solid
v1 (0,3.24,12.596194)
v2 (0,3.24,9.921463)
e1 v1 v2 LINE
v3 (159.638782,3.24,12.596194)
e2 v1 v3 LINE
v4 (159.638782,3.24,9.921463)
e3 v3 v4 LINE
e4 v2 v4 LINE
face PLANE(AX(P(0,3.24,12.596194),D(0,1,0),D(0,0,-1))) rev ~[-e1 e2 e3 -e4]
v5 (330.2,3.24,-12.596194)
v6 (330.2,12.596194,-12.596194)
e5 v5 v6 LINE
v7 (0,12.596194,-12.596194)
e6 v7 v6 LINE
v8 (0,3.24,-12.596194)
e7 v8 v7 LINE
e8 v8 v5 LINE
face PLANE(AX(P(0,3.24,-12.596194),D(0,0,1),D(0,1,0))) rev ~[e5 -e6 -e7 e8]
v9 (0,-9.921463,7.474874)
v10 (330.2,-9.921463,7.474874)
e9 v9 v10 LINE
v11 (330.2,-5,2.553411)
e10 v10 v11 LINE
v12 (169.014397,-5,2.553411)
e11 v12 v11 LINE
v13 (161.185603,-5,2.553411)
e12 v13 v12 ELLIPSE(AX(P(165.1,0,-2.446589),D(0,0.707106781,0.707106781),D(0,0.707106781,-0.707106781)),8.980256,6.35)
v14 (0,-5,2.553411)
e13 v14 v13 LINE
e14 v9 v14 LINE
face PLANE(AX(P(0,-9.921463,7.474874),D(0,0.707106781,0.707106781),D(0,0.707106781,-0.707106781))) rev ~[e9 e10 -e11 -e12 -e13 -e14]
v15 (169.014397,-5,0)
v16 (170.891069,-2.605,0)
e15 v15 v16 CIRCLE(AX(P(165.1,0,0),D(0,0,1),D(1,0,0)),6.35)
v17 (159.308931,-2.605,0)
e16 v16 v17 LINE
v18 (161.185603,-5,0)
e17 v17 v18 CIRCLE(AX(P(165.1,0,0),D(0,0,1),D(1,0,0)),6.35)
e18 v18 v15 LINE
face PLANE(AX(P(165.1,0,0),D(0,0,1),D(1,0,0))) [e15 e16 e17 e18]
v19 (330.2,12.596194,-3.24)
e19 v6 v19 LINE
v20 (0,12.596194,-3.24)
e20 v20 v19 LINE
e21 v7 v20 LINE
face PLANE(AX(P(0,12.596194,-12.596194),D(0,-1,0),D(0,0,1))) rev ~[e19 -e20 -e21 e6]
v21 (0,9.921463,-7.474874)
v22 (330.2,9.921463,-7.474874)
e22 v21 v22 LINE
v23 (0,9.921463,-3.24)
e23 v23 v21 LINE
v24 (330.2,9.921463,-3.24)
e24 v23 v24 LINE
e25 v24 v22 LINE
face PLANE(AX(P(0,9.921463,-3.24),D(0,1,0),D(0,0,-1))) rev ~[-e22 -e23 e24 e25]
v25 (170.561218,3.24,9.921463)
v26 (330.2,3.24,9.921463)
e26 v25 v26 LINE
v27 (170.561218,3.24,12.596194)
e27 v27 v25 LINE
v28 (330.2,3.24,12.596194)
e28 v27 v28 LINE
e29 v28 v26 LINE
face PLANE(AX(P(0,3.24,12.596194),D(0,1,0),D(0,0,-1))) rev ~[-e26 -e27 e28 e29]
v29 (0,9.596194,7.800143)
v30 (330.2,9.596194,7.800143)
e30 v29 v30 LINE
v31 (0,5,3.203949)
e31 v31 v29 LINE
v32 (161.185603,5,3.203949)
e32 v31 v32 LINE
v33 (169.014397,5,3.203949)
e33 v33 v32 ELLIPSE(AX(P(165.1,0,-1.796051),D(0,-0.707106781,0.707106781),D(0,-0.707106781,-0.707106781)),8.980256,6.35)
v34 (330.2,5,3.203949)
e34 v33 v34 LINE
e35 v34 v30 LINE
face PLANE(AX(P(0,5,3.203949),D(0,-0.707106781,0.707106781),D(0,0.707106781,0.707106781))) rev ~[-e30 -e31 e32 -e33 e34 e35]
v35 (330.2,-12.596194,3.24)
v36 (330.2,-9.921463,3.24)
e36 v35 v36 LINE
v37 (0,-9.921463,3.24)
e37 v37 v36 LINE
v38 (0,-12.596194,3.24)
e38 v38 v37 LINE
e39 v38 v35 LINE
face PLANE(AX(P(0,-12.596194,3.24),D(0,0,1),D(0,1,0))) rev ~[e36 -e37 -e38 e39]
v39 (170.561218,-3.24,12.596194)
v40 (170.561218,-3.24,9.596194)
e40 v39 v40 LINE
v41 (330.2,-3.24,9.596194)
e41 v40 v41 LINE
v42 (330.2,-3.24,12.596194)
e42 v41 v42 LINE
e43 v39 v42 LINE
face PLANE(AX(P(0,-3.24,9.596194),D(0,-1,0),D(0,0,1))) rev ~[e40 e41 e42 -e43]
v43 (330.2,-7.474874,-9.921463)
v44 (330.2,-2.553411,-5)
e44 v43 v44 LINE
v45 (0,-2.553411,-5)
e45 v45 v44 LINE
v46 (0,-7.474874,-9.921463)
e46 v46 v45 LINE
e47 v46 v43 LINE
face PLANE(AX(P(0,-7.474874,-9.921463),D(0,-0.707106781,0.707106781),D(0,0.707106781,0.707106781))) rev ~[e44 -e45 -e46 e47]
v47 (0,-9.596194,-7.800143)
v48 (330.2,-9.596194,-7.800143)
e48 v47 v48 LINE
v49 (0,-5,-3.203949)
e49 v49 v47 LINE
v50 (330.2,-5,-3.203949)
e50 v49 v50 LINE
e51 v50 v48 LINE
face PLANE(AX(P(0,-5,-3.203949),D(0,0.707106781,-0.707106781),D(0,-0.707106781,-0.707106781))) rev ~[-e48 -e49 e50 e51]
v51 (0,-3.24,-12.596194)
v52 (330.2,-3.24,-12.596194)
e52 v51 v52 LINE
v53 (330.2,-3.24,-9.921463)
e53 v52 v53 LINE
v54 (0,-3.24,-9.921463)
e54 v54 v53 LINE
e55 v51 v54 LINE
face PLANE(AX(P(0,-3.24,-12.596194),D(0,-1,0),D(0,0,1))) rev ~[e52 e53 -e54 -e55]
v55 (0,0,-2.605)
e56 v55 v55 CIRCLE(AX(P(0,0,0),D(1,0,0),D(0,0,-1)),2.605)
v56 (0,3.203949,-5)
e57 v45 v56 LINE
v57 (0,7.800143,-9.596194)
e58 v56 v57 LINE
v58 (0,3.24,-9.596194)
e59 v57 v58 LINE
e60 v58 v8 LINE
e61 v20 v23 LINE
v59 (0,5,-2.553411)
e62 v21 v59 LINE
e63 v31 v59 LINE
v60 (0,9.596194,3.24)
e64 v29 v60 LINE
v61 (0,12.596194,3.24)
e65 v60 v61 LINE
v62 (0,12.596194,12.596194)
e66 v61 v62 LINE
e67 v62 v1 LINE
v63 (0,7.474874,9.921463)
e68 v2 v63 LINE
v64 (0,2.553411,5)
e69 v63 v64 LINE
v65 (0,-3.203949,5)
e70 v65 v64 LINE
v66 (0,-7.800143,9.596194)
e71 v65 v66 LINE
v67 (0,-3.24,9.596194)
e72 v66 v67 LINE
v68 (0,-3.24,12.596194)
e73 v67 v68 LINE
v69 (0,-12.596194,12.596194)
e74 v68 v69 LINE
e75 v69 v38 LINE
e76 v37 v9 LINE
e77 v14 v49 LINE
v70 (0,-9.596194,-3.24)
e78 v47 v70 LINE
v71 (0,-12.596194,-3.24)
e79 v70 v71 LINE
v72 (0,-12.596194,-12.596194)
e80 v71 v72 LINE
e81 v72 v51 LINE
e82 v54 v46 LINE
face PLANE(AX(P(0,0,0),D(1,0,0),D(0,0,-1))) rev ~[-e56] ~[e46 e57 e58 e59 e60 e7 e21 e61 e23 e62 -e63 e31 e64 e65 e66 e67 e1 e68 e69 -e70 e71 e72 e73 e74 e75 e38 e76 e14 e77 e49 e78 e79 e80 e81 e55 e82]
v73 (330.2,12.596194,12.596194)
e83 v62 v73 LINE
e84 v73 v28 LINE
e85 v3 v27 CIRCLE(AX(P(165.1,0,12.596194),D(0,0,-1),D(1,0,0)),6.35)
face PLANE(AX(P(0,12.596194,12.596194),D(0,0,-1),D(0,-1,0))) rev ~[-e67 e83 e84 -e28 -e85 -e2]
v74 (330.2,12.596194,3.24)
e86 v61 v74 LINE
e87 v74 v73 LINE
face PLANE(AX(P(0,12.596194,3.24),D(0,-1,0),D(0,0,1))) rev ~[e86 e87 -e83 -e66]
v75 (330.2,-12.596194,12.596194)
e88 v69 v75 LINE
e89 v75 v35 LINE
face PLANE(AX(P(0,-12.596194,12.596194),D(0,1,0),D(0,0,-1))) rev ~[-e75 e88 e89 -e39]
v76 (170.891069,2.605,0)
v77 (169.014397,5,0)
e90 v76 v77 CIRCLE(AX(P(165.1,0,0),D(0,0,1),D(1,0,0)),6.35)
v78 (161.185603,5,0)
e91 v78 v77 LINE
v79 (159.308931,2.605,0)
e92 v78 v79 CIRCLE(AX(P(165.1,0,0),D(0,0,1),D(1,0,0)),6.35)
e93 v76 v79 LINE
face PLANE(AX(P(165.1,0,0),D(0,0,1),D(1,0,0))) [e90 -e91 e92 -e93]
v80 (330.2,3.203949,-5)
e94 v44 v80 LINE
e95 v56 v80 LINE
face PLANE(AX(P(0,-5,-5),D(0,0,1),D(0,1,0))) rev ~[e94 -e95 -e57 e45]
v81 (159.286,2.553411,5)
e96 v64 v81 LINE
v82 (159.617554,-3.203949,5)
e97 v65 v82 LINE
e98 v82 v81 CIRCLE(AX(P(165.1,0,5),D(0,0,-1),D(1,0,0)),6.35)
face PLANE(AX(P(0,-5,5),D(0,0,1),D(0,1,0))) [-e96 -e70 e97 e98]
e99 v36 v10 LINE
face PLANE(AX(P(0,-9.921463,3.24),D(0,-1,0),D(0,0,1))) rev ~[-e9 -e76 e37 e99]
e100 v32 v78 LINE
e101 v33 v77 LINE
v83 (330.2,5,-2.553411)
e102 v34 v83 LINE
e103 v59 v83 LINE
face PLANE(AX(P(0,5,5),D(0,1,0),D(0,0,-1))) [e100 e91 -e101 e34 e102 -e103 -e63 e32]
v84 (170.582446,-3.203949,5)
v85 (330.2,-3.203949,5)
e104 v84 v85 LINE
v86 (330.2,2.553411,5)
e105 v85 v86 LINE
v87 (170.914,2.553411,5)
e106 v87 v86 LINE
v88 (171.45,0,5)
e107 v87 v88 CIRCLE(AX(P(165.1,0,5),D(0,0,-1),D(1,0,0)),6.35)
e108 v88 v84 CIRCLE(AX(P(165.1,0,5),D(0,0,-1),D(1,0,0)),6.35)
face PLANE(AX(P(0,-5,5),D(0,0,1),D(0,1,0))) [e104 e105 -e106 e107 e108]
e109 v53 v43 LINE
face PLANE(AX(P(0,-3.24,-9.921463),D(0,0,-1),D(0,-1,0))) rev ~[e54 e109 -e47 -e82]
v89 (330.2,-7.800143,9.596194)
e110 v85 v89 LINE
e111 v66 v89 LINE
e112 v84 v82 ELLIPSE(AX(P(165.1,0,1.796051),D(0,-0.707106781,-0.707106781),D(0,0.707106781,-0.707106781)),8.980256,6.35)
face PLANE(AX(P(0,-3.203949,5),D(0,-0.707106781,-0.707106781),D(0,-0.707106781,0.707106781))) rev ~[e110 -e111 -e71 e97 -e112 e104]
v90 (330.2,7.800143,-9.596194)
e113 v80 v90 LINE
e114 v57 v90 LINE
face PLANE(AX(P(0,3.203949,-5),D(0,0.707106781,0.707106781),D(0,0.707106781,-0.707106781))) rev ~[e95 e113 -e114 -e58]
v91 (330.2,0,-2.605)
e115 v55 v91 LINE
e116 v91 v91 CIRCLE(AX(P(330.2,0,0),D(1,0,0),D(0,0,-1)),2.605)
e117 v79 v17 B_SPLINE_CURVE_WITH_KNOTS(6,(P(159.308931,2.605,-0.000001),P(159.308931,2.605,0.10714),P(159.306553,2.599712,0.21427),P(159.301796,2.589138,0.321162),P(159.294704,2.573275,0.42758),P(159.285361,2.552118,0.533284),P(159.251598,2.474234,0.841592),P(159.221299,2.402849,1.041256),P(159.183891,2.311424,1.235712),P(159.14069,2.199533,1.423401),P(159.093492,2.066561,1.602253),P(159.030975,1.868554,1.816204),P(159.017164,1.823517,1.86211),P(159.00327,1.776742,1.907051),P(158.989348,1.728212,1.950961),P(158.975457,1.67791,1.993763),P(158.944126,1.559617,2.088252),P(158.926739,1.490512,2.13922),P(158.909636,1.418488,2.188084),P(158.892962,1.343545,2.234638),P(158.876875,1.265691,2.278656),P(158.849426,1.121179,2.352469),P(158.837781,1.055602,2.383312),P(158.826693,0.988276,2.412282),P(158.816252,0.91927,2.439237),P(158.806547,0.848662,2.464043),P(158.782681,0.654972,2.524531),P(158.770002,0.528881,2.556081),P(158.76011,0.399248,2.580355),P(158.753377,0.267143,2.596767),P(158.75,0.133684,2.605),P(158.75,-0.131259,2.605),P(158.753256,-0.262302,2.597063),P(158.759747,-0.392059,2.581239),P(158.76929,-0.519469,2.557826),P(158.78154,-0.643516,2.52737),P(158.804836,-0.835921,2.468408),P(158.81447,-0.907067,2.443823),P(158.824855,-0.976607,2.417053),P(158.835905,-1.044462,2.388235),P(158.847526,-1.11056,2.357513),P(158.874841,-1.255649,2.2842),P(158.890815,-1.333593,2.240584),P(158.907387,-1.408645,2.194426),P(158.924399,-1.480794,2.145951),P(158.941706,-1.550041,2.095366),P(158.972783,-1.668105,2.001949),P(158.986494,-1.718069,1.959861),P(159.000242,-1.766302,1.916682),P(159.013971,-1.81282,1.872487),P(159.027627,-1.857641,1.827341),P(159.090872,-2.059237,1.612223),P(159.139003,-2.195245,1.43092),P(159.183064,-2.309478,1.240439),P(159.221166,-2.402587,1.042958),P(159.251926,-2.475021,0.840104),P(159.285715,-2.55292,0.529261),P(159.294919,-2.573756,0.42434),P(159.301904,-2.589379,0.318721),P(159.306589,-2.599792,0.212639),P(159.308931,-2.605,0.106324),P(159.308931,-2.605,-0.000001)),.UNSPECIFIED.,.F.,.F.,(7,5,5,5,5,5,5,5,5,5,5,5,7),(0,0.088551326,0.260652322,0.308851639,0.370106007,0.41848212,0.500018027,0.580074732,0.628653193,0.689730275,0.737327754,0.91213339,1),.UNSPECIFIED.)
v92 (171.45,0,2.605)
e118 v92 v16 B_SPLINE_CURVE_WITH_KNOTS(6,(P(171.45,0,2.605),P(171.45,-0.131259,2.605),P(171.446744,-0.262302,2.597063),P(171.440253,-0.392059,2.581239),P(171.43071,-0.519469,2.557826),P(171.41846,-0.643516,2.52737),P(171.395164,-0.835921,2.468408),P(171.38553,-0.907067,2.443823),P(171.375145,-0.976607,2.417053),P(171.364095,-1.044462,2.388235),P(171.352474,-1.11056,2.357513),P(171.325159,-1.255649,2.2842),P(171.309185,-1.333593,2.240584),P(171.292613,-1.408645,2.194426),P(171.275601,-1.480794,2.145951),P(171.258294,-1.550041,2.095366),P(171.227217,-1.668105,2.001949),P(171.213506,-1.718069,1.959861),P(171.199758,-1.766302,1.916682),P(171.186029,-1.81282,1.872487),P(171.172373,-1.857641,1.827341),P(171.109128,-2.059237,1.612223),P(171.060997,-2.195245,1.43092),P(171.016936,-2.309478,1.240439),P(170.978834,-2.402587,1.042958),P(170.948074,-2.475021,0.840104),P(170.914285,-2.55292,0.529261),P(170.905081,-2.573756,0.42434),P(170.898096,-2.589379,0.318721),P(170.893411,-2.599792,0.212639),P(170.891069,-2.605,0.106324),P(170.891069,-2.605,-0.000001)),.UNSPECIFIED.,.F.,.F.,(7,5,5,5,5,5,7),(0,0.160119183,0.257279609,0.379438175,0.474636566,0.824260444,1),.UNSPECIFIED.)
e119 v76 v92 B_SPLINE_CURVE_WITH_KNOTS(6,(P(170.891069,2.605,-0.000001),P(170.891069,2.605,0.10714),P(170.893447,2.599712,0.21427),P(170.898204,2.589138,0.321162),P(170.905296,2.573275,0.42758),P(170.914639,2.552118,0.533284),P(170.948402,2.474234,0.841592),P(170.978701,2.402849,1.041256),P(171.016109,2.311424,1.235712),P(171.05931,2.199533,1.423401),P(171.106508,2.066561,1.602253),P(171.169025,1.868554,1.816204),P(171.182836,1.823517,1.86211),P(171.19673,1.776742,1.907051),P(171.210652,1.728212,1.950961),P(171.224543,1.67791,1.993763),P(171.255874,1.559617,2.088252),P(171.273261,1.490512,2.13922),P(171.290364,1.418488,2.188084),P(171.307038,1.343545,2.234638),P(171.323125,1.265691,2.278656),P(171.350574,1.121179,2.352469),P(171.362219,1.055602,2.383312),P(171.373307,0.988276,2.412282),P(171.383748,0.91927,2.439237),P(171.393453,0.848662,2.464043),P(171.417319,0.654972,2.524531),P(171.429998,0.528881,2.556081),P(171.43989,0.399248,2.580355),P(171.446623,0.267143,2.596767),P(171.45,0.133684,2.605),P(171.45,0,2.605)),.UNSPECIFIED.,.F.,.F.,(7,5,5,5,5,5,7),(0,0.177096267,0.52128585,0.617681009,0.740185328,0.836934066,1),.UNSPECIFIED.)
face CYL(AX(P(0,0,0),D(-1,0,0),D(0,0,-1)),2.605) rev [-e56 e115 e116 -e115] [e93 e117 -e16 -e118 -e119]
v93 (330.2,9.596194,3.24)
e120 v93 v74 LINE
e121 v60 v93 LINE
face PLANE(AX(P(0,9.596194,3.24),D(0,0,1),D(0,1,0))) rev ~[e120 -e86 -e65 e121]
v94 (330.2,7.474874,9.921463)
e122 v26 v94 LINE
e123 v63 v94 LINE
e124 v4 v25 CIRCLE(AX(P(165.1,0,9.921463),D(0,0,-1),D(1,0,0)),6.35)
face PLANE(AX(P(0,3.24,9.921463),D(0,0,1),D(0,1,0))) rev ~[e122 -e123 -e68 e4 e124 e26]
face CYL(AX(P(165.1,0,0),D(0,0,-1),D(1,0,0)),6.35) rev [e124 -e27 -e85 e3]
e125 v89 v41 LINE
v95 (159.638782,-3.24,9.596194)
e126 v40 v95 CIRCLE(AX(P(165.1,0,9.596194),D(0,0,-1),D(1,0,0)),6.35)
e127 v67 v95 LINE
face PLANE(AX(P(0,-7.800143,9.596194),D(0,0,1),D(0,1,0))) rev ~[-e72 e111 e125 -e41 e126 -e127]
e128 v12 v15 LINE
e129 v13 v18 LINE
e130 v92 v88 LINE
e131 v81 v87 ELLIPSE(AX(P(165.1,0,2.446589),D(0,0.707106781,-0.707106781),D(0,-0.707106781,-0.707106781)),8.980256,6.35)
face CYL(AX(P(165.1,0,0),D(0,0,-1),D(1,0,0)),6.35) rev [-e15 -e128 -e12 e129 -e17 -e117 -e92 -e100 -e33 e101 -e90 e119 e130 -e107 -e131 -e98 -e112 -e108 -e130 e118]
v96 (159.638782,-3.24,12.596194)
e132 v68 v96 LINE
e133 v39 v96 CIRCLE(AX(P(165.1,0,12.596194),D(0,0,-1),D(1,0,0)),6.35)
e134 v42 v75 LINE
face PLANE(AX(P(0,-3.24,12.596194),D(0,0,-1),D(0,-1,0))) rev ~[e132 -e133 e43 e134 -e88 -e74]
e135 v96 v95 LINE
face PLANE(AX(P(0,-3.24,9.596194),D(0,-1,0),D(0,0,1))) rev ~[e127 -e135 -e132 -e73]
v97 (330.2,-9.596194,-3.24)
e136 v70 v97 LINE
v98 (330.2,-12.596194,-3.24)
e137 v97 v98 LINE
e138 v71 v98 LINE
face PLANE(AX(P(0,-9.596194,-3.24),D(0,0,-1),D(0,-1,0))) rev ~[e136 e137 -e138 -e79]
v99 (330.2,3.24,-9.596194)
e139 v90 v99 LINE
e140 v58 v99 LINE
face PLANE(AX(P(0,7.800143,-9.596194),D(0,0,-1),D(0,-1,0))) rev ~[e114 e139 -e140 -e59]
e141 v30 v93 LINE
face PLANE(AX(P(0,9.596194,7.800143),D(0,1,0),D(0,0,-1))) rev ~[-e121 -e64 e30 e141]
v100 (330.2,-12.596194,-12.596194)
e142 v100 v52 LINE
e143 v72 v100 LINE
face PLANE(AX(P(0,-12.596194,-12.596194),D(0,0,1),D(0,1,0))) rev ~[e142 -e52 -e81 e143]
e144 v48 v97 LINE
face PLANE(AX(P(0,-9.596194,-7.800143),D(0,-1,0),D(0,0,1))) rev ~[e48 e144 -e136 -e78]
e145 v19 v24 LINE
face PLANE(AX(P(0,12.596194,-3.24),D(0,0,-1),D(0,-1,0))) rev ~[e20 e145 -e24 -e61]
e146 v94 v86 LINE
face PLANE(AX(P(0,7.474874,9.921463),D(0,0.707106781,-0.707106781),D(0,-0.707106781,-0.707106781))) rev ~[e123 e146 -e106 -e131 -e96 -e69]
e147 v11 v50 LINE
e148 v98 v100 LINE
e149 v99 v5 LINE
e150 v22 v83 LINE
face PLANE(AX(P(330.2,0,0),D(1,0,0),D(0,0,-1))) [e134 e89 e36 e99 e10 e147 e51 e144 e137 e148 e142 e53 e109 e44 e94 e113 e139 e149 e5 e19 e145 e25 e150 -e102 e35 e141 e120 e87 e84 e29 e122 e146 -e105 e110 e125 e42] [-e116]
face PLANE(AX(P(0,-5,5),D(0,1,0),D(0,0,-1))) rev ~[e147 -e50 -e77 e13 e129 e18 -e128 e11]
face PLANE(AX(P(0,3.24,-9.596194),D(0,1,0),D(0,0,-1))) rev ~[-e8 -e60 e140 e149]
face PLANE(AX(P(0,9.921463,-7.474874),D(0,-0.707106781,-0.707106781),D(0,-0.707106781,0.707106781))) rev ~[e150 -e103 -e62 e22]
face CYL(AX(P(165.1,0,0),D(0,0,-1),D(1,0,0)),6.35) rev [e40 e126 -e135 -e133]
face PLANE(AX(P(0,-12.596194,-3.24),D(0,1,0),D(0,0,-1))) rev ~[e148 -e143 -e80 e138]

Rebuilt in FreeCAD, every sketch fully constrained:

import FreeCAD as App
import Part
import Sketcher

V = App.Vector
Q = App.Units.Quantity

doc = App.newDocument("Part")
params = doc.addObject("Spreadsheet::Sheet", "Params")
for row, (alias, value) in enumerate([
    ("sketch1_diameter", "5.21 mm"),
    ("sketch1_width", "10 mm"),
    ("sketch1_height", "3 mm"),
    ("sketch1_length", "6.5 mm"),
    ("sketch1_length2", "6.96 mm"),
    ("pad1_length", "330.2 mm"),
    ("sketch2_diameter", "12.7 mm"),
    ("pocket1_length", "20 mm"),
], start=1):
    params.set(f"A{row}", alias)
    params.set(f"B{row}", "=" + value)
    params.setAlias(f"B{row}", alias)

body = doc.addObject("PartDesign::Body", "Body")

# Sketch on YZ plane
sketch1 = body.newObject("Sketcher::SketchObject", "Sketch")
sketch1.AttachmentSupport = (doc.getObject("YZ_Plane"), [""])
sketch1.MapMode = "FlatFace"
sketch1.addGeometry([
    Part.LineSegment(V(5, 5, 0), V(-5, 5, 0)),  # 0
    Part.LineSegment(V(-5, 5, 0), V(-5, -5, 0)),  # 1
    Part.LineSegment(V(-5, -5, 0), V(3.203949, -5, 0)),  # 2
    Part.LineSegment(V(3.203949, -5, 0), V(7.800143, -9.596194, 0)),  # 3
    Part.LineSegment(V(7.800143, -9.596194, 0), V(3.24, -9.596194, 0)),  # 4
    Part.LineSegment(V(3.24, -9.596194, 0), V(3.24, -12.596194, 0)),  # 5
    Part.LineSegment(V(3.24, -12.596194, 0), V(12.596194, -12.596194, 0)),  # 6
    Part.LineSegment(V(12.596194, -12.596194, 0), V(12.596194, -3.24, 0)),  # 7
    Part.LineSegment(V(12.596194, -3.24, 0), V(9.921463, -3.24, 0)),  # 8
    Part.LineSegment(V(9.921463, -3.24, 0), V(9.921463, -7.474874, 0)),  # 9
    Part.LineSegment(V(9.921463, -7.474874, 0), V(5, -2.553411, 0)),  # 10
    Part.LineSegment(V(5, -2.553411, 0), V(5, 5, 0)),  # 11
    Part.Circle(V(0, 0, 0), V(0, 0, 1), 2.605),  # 12
], False)
sketch1.addConstraint([
    Sketcher.Constraint("Coincident", 0, 2, 1, 1),
    Sketcher.Constraint("Coincident", 1, 2, 2, 1),
    Sketcher.Constraint("Coincident", 2, 2, 3, 1),
    Sketcher.Constraint("Coincident", 3, 2, 4, 1),
    Sketcher.Constraint("Coincident", 4, 2, 5, 1),
    Sketcher.Constraint("Coincident", 5, 2, 6, 1),
    Sketcher.Constraint("Coincident", 6, 2, 7, 1),
    Sketcher.Constraint("Coincident", 7, 2, 8, 1),
    Sketcher.Constraint("Coincident", 8, 2, 9, 1),
    Sketcher.Constraint("Coincident", 9, 2, 10, 1),
    Sketcher.Constraint("Coincident", 10, 2, 11, 1),
    Sketcher.Constraint("Coincident", 11, 2, 0, 1),
    Sketcher.Constraint("Horizontal", 0),
    Sketcher.Constraint("Vertical", 1),
    Sketcher.Constraint("Horizontal", 2),
    Sketcher.Constraint("Horizontal", 4),
    Sketcher.Constraint("Vertical", 5),
    Sketcher.Constraint("Horizontal", 6),
    Sketcher.Constraint("Vertical", 7),
    Sketcher.Constraint("Horizontal", 8),
    Sketcher.Constraint("Vertical", 9),
    Sketcher.Constraint("Vertical", 11),
    Sketcher.Constraint("Coincident", 12, 3, -1, 1),
    Sketcher.Constraint("Symmetric", 1, 2, 11, 2, -1, 1),
    Sketcher.Constraint("Parallel", 3, 10),
    Sketcher.Constraint("Equal", 0, 1),
    Sketcher.Constraint("Equal", 6, 7),
    Sketcher.Constraint("Diameter", 12, Q("5.21 mm")),
    Sketcher.Constraint("DistanceX", 0, 2, 0, 1, Q("10 mm")),
    Sketcher.Constraint("DistanceY", 5, 2, 5, 1, Q("3 mm")),
    Sketcher.Constraint("Angle", 3, Q("-45 deg")),
    Sketcher.Constraint("Distance", 3, Q("6.5 mm")),
    Sketcher.Constraint("Distance", 10, Q("6.96 mm")),
    Sketcher.Constraint("DistanceX", -1, 1, 4, 2, Q("3.24 mm")),
    Sketcher.Constraint("DistanceY", 7, 2, -1, 1, Q("3.24 mm")),
    Sketcher.Constraint("DistanceX", 2, 1, 2, 2, Q("8.203949 mm")),
    Sketcher.Constraint("DistanceY", 11, 1, 11, 2, Q("7.553411 mm")),
])
sketch1.setExpression("Constraints[27]", "Params.sketch1_diameter")
sketch1.setExpression("Constraints[28]", "Params.sketch1_width")
sketch1.setExpression("Constraints[29]", "Params.sketch1_height")
sketch1.setExpression("Constraints[31]", "Params.sketch1_length")
sketch1.setExpression("Constraints[32]", "Params.sketch1_length2")
pad1 = body.newObject("PartDesign::Pad", "Pad")
pad1.Profile = sketch1
pad1.setExpression("Length", "Params.pad1_length")
doc.recompute()

polarpattern = body.newObject("PartDesign::PolarPattern", "PolarPattern")
polarpattern.Originals = [pad1]
polarpattern.Axis = (doc.getObject("X_Axis"), [""])
polarpattern.Angle = 360
polarpattern.Occurrences = 4
body.Tip = polarpattern

# Sketch on XY plane
sketch2 = body.newObject("Sketcher::SketchObject", "Sketch001")
sketch2.AttachmentSupport = (doc.getObject("XY_Plane"), [""])
sketch2.MapMode = "FlatFace"
sketch2.addGeometry(Part.Circle(V(165.1, 0, 0), V(0, 0, 1), 6.35), False)
sketch2.addConstraint([
    Sketcher.Constraint("PointOnObject", 0, 3, -1),
    Sketcher.Constraint("Diameter", 0, Q("12.7 mm")),
    Sketcher.Constraint("DistanceX", -1, 1, 0, 3, Q("165.1 mm")),
])
sketch2.setExpression("Constraints[1]", "Params.sketch2_diameter")
pocket1 = body.newObject("PartDesign::Pocket", "Pocket")
pocket1.Profile = sketch2
pocket1.setExpression("Length", "Params.pocket1_length")
pocket1.Reversed = True

doc.recompute()
